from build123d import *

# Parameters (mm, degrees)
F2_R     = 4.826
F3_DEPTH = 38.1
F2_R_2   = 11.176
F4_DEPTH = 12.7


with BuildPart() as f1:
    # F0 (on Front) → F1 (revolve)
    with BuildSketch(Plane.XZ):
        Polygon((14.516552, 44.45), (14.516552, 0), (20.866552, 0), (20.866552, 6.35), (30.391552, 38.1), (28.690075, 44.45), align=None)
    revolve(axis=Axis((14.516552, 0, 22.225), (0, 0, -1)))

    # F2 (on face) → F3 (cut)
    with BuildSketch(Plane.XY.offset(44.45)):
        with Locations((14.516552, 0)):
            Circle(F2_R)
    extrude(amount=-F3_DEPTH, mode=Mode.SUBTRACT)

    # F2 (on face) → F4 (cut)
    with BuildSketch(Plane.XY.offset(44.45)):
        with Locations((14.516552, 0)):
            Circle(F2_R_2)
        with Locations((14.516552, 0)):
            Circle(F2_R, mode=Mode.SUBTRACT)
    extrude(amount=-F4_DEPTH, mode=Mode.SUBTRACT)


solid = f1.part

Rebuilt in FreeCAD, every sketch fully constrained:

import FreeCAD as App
import Part
import Sketcher
Q = App.Units.Quantity


def add_polygon(sketch, points):
    """Adds a closed chain of lines whose ends are joined by coincident constraints."""
    first, n = sketch.GeometryCount, len(points)
    for a, b in zip(points, points[1:] + points[:1]):
        sketch.addGeometry(Part.LineSegment(App.Vector(*a, 0), App.Vector(*b, 0)), False)
    for i in range(n):
        sketch.addConstraint(Sketcher.Constraint("Coincident", first + i, 2, first + (i + 1) % n, 1))

doc = App.newDocument("Part")
params = doc.addObject("Spreadsheet::Sheet", "Params")
for row, (alias, value) in enumerate([
    ("sketch1_width", "0.25 in"),
    ("sketch1_height", "1.75 in"),
    ("revolution_angle", "360 deg"),
    ("sketch2_diameter", "0.38 in"),
    ("pocket1_length", "1.5 in"),
    ("sketch3_diameter", "0.88 in"),
    ("sketch3_diameter2", "0.38 in"),
    ("pocket2_length", "0.5 in"),
], start=1):
    params.set(f"A{row}", alias)
    params.set(f"B{row}", "=" + value)
    params.setAlias(f"B{row}", alias)

body = doc.addObject("PartDesign::Body", "Body")

# Sketch on XZ plane
sketch1 = doc.addObject("Sketcher::SketchObject", "Sketch")
body.addObject(sketch1)
sketch1.AttachmentSupport = (doc.XZ_Plane, [""])
sketch1.MapMode = "FlatFace"
add_polygon(sketch1, [(15, 44), (15, 0), (21, 0), (21, 6), (30, 38), (29, 44)])  # lines 0-5
sketch1.addGeometry(Part.LineSegment(App.Vector(15, 44, 0), App.Vector(15, 0, 0)), True)  # axis
sketch1.addConstraint(Sketcher.Constraint("Vertical", 0))
sketch1.addConstraint(Sketcher.Constraint("Horizontal", 1))
sketch1.addConstraint(Sketcher.Constraint("Vertical", 2))
sketch1.addConstraint(Sketcher.Constraint("Horizontal", 5))
sketch1.addConstraint(Sketcher.Constraint("Vertical", 6))
sketch1.addConstraint(Sketcher.Constraint("Coincident", 6, 1, 5, 2))
sketch1.addConstraint(Sketcher.Constraint("PointOnObject", 0, 2, -1))
sketch1.addConstraint(Sketcher.Constraint("PointOnObject", 6, 2, -1))
sketch1.addConstraint(Sketcher.Constraint("Equal", 1, 2))
sketch1.addConstraint(Sketcher.Constraint("Angle", 4, Q("104.999997 deg")))
sketch1.addConstraint(Sketcher.Constraint("DistanceX", 1, 1, 1, 2, Q("0.25 in")))
sketch1.addConstraint(Sketcher.Constraint("DistanceY", 0, 2, 0, 1, Q("1.75 in")))
sketch1.addConstraint(Sketcher.Constraint("DistanceY", -1, 1, 3, 2, Q("1.5 in")))
sketch1.addConstraint(Sketcher.Constraint("DistanceX", 2, 2, 3, 2, Q("0.375 in")))
sketch1.addConstraint(Sketcher.Constraint("DistanceX", -1, 1, 1, 2, Q("20.866552 mm")))
sketch1.setExpression("Constraints[16]", "Params.sketch1_width")
sketch1.setExpression("Constraints[17]", "Params.sketch1_height")
revolution = doc.addObject("PartDesign::Revolution", "Revolution")
body.addObject(revolution)
revolution.Profile = sketch1
revolution.ReferenceAxis = (sketch1, ["Axis0"])
revolution.setExpression("Angle", "Params.revolution_angle")

# Sketch on XY plane
sketch2 = doc.addObject("Sketcher::SketchObject", "Sketch001")
body.addObject(sketch2)
sketch2.AttachmentSupport = (doc.XY_Plane, [""])
sketch2.MapMode = "FlatFace"
sketch2.AttachmentOffset = App.Placement(App.Vector(0, 0, 1.75 * 25.4), App.Rotation())
sketch2.addGeometry(Part.Circle(App.Vector(14.5, 0, 0), App.Vector(0, 0, 1), 4.8), False)
sketch2.addConstraint(Sketcher.Constraint("PointOnObject", 0, 3, -1))
sketch2.addConstraint(Sketcher.Constraint("Diameter", 0, Q("0.38 in")))
sketch2.addConstraint(Sketcher.Constraint("DistanceX", -1, 1, 0, 3, Q("14.516552 mm")))
sketch2.setExpression("Constraints[1]", "Params.sketch2_diameter")
pocket1 = doc.addObject("PartDesign::Pocket", "Pocket")
body.addObject(pocket1)
pocket1.Profile = sketch2
pocket1.setExpression("Length", "Params.pocket1_length")

# Sketch on XY plane
sketch3 = doc.addObject("Sketcher::SketchObject", "Sketch002")
body.addObject(sketch3)
sketch3.AttachmentSupport = (doc.XY_Plane, [""])
sketch3.MapMode = "FlatFace"
sketch3.AttachmentOffset = App.Placement(App.Vector(0, 0, 1.75 * 25.4), App.Rotation())
sketch3.addGeometry(Part.Circle(App.Vector(14.5, 0, 0), App.Vector(0, 0, 1), 11.2), False)
sketch3.addGeometry(Part.Circle(App.Vector(14.5, 0, 0), App.Vector(0, 0, 1), 4.8), False)
sketch3.addConstraint(Sketcher.Constraint("Coincident", 1, 3, 0, 3))
sketch3.addConstraint(Sketcher.Constraint("PointOnObject", 0, 3, -1))
sketch3.addConstraint(Sketcher.Constraint("Diameter", 0, Q("0.88 in")))
sketch3.addConstraint(Sketcher.Constraint("Diameter", 1, Q("0.38 in")))
sketch3.addConstraint(Sketcher.Constraint("DistanceX", -1, 1, 0, 3, Q("14.516552 mm")))
sketch3.setExpression("Constraints[2]", "Params.sketch3_diameter")
sketch3.setExpression("Constraints[3]", "Params.sketch3_diameter2")
pocket2 = doc.addObject("PartDesign::Pocket", "Pocket001")
body.addObject(pocket2)
pocket2.Profile = sketch3
pocket2.setExpression("Length", "Params.pocket2_length")

doc.recompute()
